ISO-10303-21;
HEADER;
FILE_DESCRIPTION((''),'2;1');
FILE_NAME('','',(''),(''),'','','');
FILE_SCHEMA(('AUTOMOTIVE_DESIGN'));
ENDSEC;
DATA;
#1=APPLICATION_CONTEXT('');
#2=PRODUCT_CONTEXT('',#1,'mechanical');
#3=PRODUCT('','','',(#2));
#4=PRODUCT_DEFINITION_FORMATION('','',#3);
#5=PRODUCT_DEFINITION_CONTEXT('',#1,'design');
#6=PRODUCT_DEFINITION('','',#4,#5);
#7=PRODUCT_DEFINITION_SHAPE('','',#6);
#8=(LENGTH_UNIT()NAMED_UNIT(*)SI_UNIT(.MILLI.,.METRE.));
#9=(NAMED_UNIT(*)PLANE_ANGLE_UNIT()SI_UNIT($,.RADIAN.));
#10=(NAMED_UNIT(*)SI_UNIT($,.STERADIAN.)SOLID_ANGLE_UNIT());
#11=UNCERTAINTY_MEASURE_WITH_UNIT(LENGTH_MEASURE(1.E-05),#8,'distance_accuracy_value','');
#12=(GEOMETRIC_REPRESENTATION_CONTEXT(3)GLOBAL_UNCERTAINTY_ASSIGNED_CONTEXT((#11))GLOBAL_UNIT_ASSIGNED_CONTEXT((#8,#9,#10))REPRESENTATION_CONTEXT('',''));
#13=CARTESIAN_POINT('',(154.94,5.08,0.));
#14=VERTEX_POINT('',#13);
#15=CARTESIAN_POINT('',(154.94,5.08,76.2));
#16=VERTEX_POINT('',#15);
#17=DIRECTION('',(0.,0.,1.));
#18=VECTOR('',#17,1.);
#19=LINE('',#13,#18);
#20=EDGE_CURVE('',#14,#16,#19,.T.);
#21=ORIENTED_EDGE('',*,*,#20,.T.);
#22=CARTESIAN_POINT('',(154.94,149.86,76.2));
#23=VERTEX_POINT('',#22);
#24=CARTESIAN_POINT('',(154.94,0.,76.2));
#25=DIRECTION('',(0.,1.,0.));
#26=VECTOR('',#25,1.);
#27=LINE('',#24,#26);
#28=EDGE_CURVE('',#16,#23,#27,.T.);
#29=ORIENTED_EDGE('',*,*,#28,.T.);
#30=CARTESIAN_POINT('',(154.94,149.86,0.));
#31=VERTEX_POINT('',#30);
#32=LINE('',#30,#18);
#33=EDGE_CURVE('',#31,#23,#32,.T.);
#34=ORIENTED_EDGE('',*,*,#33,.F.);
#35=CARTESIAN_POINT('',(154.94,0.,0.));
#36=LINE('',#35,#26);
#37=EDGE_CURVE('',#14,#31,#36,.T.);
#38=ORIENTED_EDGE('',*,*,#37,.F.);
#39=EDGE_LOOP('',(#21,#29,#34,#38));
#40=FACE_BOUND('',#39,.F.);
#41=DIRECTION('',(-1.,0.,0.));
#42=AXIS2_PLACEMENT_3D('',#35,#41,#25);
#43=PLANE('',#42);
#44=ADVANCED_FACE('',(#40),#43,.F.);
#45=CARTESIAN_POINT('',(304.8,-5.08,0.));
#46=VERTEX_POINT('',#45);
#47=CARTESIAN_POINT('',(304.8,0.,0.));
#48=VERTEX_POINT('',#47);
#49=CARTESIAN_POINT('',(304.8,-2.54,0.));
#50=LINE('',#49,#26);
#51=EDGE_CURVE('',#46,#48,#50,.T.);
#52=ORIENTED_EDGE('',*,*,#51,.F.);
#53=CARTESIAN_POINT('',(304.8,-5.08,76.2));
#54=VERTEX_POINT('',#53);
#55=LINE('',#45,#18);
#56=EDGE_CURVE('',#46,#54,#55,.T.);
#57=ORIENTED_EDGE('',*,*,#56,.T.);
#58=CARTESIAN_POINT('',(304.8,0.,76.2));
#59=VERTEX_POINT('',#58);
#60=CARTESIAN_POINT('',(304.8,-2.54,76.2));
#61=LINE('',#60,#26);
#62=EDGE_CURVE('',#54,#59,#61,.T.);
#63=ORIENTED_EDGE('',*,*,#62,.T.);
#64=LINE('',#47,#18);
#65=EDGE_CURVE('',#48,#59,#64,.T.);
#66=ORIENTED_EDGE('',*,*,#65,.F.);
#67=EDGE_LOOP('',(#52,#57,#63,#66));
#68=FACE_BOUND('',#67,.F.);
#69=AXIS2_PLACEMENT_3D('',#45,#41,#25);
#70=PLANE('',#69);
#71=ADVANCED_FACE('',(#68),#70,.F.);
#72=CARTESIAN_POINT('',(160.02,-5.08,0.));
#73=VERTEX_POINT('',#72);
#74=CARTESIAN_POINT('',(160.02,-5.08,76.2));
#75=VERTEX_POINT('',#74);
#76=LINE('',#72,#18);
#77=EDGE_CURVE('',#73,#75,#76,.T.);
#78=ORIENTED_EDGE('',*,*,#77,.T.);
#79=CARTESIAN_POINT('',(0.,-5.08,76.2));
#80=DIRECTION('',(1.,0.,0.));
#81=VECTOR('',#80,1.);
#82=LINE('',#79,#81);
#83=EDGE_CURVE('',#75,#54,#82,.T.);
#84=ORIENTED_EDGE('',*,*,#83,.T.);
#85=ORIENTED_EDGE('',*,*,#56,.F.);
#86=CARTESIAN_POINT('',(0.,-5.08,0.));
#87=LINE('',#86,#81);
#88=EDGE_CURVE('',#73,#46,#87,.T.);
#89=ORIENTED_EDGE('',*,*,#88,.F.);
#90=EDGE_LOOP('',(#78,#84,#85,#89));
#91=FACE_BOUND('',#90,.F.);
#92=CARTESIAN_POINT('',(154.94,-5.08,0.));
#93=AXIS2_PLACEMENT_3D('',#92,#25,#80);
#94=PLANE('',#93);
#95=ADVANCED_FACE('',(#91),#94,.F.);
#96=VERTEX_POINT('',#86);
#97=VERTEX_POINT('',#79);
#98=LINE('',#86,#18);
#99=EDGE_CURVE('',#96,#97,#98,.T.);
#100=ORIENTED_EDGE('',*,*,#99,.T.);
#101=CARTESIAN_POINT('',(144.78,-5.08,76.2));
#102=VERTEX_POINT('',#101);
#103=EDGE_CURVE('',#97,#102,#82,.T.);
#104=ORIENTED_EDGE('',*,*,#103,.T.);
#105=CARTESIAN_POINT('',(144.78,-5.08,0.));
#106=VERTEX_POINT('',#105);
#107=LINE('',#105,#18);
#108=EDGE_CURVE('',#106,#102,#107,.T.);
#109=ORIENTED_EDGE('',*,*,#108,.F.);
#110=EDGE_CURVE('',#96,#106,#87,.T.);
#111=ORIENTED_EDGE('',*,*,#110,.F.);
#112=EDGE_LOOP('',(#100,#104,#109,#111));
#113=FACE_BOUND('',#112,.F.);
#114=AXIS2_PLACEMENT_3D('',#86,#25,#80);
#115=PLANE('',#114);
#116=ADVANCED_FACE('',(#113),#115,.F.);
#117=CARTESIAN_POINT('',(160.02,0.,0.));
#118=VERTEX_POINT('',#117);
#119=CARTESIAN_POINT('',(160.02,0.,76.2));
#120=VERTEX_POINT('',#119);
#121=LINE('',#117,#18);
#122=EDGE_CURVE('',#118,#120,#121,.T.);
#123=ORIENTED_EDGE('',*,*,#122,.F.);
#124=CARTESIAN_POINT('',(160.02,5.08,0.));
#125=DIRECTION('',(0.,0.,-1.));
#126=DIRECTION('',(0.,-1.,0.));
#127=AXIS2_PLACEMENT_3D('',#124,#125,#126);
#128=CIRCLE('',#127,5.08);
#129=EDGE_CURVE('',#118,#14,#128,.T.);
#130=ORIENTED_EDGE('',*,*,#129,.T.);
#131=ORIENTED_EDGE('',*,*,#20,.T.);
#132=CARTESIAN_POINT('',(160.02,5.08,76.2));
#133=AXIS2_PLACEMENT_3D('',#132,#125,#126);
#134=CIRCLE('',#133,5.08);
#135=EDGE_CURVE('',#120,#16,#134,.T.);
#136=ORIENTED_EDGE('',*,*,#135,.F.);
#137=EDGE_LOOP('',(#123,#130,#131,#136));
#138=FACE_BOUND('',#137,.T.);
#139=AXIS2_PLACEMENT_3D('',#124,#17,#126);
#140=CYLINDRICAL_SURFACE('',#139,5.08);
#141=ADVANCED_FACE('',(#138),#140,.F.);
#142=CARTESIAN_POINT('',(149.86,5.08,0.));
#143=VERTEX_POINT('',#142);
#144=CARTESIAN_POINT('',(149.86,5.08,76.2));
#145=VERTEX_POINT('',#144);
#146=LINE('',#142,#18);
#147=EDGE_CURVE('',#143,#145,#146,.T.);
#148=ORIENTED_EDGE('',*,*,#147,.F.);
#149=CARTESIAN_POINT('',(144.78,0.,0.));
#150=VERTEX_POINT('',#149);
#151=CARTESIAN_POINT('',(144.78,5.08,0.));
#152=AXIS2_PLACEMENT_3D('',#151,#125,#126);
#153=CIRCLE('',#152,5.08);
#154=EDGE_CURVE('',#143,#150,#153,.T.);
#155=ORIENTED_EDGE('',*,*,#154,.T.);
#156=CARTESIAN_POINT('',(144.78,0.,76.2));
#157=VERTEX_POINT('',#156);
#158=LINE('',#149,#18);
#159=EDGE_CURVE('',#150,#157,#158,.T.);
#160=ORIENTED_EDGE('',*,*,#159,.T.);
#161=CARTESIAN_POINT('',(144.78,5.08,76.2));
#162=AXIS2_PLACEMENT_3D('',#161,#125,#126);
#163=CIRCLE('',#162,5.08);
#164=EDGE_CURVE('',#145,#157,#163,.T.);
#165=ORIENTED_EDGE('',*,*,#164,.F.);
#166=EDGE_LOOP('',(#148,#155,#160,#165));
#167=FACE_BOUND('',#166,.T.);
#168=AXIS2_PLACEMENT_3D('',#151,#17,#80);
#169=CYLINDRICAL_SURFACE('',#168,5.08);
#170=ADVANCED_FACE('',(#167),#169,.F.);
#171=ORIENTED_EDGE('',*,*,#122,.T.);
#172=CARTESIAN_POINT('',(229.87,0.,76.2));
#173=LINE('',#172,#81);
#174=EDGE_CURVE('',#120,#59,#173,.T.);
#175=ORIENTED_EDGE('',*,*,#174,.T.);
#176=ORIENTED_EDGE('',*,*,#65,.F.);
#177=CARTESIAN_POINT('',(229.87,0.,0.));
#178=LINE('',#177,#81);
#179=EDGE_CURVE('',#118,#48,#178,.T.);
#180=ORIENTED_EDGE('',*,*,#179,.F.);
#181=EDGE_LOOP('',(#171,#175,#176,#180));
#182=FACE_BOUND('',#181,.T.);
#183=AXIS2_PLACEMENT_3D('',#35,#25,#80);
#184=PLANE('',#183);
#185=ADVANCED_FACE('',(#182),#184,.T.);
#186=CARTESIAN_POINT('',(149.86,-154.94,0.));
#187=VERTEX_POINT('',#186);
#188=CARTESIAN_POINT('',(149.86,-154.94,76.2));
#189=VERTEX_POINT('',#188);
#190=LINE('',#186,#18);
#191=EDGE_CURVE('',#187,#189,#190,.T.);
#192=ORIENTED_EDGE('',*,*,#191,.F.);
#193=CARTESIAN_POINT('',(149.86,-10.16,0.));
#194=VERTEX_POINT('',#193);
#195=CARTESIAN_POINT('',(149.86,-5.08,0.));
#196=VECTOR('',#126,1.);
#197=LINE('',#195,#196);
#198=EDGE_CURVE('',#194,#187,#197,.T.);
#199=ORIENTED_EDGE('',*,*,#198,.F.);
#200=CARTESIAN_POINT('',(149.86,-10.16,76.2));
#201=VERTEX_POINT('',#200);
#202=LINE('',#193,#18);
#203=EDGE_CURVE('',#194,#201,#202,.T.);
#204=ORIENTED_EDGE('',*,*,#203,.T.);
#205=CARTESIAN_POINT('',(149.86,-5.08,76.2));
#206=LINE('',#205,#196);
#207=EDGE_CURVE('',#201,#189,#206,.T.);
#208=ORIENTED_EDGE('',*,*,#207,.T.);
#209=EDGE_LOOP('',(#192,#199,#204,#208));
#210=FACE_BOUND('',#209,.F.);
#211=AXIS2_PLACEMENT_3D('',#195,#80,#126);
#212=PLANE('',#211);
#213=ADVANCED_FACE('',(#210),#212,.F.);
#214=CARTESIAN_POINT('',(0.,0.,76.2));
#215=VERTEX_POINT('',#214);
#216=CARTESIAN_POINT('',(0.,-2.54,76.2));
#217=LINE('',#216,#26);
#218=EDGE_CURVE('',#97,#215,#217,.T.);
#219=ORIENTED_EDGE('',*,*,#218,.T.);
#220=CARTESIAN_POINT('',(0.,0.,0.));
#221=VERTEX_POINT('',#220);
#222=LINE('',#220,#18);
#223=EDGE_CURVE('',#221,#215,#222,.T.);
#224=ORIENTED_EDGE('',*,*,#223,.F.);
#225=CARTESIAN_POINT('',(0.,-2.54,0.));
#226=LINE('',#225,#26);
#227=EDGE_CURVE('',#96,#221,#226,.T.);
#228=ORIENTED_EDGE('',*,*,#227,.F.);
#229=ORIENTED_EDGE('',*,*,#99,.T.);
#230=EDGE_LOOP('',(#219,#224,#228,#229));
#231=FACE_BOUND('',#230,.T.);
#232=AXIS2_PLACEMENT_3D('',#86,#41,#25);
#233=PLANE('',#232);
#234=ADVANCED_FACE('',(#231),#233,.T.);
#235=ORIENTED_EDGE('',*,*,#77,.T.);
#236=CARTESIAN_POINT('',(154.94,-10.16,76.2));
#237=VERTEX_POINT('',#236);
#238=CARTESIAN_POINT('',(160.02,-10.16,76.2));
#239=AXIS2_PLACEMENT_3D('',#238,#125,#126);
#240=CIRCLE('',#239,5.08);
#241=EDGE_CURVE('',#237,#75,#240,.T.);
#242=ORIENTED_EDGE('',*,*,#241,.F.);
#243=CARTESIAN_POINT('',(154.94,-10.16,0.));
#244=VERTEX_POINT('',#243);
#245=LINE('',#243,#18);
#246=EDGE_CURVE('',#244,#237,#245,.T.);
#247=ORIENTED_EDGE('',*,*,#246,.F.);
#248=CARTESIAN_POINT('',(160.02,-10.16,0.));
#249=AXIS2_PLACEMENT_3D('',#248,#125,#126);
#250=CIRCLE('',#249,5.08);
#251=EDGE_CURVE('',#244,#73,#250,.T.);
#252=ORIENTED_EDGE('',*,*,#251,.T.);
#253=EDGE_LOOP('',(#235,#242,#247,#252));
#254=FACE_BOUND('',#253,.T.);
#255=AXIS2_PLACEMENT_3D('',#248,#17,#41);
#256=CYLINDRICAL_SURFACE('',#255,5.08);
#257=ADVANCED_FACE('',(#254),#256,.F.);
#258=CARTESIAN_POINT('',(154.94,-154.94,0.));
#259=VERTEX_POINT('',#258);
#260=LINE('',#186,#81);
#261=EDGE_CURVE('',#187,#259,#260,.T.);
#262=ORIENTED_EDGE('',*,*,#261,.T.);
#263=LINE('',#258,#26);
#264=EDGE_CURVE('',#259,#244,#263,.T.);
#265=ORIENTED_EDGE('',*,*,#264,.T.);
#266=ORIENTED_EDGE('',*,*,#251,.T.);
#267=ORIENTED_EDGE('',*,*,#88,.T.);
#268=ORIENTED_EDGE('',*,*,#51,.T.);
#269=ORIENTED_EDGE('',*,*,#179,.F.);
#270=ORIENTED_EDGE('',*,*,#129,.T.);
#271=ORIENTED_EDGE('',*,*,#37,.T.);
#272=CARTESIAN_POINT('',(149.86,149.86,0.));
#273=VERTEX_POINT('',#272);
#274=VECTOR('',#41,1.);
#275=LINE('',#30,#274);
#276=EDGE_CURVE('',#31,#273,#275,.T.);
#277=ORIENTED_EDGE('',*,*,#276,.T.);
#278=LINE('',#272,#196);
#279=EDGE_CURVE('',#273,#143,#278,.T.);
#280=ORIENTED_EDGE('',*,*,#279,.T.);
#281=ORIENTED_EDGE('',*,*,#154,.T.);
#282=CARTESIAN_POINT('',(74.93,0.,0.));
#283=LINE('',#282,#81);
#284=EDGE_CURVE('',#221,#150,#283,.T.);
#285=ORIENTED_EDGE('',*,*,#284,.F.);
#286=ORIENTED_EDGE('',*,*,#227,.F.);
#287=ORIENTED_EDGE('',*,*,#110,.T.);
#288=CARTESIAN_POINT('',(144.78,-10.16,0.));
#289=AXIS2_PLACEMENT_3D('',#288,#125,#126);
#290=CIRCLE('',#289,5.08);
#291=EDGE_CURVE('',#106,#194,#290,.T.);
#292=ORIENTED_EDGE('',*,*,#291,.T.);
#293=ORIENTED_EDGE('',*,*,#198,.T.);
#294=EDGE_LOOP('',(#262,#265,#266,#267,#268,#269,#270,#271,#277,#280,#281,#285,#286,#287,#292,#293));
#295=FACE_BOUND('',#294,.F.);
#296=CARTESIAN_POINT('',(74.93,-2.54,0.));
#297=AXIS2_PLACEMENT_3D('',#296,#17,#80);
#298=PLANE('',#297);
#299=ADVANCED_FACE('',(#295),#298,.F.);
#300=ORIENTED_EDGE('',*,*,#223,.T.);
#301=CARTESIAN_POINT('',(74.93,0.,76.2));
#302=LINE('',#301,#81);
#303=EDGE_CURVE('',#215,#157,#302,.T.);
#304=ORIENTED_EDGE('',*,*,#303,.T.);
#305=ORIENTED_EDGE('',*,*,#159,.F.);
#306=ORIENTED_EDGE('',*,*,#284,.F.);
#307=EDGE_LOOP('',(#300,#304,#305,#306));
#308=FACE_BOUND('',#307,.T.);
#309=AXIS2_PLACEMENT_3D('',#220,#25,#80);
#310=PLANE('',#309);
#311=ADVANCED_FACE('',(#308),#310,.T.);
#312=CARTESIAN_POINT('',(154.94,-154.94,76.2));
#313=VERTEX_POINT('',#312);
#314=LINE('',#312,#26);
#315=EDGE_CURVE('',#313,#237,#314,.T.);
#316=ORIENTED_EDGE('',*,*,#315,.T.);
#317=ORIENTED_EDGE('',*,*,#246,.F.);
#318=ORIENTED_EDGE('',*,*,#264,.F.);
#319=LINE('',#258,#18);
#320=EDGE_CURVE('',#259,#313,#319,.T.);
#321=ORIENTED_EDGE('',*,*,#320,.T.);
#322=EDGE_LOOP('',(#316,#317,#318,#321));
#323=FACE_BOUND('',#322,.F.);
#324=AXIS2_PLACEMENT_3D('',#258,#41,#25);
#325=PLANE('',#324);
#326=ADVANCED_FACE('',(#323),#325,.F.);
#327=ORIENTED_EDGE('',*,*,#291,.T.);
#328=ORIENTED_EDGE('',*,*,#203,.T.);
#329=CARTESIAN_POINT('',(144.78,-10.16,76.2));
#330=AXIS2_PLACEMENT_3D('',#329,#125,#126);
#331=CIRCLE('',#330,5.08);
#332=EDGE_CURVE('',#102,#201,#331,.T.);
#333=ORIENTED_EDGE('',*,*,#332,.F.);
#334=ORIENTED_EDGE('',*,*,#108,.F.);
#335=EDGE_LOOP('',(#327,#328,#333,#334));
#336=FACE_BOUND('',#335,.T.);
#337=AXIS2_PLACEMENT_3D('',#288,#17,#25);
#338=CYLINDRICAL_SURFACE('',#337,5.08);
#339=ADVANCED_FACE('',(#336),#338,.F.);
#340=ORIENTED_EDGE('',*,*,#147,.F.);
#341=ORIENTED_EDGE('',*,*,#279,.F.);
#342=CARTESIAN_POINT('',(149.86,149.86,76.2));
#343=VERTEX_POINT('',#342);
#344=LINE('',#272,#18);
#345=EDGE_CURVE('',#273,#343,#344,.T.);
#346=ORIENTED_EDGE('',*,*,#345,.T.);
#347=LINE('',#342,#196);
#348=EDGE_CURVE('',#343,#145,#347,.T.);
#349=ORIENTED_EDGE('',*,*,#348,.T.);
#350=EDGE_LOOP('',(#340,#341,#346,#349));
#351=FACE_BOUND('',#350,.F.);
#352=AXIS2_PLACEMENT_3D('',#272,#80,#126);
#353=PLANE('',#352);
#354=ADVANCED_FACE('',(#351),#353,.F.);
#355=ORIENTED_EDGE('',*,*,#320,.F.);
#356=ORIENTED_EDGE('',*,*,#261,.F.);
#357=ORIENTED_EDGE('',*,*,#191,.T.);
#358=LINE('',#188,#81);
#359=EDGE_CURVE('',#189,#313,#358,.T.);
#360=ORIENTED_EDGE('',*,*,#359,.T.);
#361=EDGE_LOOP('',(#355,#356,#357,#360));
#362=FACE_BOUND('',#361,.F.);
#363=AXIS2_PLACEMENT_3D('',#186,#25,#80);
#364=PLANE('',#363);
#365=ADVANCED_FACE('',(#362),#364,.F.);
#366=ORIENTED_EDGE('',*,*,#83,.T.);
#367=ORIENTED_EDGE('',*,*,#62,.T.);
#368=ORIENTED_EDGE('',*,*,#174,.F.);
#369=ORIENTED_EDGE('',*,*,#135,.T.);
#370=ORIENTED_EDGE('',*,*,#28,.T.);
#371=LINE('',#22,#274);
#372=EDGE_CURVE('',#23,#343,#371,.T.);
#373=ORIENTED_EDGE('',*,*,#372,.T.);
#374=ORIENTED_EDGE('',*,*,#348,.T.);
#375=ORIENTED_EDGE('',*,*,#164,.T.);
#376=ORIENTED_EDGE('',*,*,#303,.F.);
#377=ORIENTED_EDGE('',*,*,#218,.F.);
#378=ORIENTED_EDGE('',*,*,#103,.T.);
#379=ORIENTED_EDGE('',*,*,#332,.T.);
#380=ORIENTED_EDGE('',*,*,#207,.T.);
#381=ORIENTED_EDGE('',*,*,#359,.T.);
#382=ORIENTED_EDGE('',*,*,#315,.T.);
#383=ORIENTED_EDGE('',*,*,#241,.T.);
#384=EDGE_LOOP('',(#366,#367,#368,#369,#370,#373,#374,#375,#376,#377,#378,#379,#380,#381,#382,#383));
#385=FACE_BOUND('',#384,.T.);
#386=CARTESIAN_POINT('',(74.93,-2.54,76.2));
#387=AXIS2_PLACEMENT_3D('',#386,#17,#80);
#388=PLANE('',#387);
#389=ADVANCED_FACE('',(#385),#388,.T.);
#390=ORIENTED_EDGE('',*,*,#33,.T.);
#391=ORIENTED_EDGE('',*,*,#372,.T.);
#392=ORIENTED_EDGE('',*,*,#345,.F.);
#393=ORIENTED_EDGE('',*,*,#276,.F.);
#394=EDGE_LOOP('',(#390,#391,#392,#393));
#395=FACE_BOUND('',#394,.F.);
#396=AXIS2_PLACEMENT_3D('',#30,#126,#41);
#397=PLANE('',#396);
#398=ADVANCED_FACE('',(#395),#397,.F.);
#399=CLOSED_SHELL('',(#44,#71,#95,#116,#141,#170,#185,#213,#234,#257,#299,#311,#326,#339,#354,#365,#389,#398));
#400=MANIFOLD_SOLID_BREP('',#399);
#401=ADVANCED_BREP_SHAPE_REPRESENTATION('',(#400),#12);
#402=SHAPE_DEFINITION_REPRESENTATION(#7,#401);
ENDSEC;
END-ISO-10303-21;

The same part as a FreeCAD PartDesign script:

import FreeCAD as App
import Part
import Sketcher
from FreeCAD import Vector
Q = App.Units.Quantity


def edges_at(feature, points):
    """Names of the edges that pass closest to the given points."""
    edges = feature.Shape.Edges
    near = lambda p: min(range(len(edges)), key=lambda i: edges[i].distToShape(Part.Vertex(*p))[0])
    return sorted({f"Edge{near(p) + 1}" for p in points})


def add_polygon(sketch, points):
    """Adds a closed chain of lines whose ends are joined by coincident constraints."""
    first, n = sketch.GeometryCount, len(points)
    for a, b in zip(points, points[1:] + points[:1]):
        sketch.addGeometry(Part.LineSegment(App.Vector(*a, 0), App.Vector(*b, 0)), False)
    for i in range(n):
        sketch.addConstraint(Sketcher.Constraint("Coincident", first + i, 2, first + (i + 1) % n, 1))

doc = App.newDocument("Part")
body = doc.addObject("PartDesign::Body", "Body")

sketch1 = body.newObject("Sketcher::SketchObject", "Sketch")
sketch1.AttachmentSupport = (doc.getObject("XY_Plane"), [""])
sketch1.MapMode = "FlatFace"
add_polygon(sketch1, [(0, 0), (0, -5), (150, -5), (150, -155), (155, -155), (155, -5), (305, -5), (305, 0), (155, 0), (155, 150), (150, 150), (150, 0)])
sketch1.addConstraint(Sketcher.Constraint("Vertical", 0))
sketch1.addConstraint(Sketcher.Constraint("Horizontal", 1))
sketch1.addConstraint(Sketcher.Constraint("Vertical", 2))
sketch1.addConstraint(Sketcher.Constraint("Horizontal", 3))
sketch1.addConstraint(Sketcher.Constraint("Vertical", 4))
sketch1.addConstraint(Sketcher.Constraint("Horizontal", 5))
sketch1.addConstraint(Sketcher.Constraint("Vertical", 6))
sketch1.addConstraint(Sketcher.Constraint("Horizontal", 7))
sketch1.addConstraint(Sketcher.Constraint("Vertical", 8))
sketch1.addConstraint(Sketcher.Constraint("Horizontal", 9))
sketch1.addConstraint(Sketcher.Constraint("Vertical", 10))
sketch1.addConstraint(Sketcher.Constraint("Horizontal", 11))
sketch1.addConstraint(Sketcher.Constraint("Coincident", 11, 2, -1, 1))
sketch1.addConstraint(Sketcher.Constraint("PointOnObject", 6, 2, -1))
sketch1.addConstraint(Sketcher.Constraint("Horizontal", 1, 2, 4, 2))
sketch1.addConstraint(Sketcher.Constraint("Vertical", 4, 2, 7, 2))
sketch1.addConstraint(Sketcher.Constraint("Vertical", 2, 2, 9, 2))
sketch1.addConstraint(Sketcher.Constraint("Equal", 1, 5))
sketch1.addConstraint(Sketcher.Constraint("Equal", 9, 0))
sketch1.addConstraint(Sketcher.Constraint("Equal", 11, 2))
sketch1.addConstraint(Sketcher.Constraint("Equal", 4, 8))
sketch1.addConstraint(Sketcher.Constraint("DistanceX", 1, 1, 1, 2, Q("5.9 in")))
sketch1.addConstraint(Sketcher.Constraint("DistanceX", 3, 1, 3, 2, Q("0.2 in")))
pad1 = body.newObject("PartDesign::Pad", "Pad")
pad1.Profile = sketch1
pad1.Length = Q("3 in")
doc.recompute()

fillet = body.newObject("PartDesign::Fillet", "Fillet")
fillet.Base = (pad1, edges_at(pad1, [
    (149.86, -5.08, 38.1),
    (154.94, -5.08, 38.1),
    (154.94, 0, 38.1),
    (149.86, 0, 38.1),
]))
fillet.Radius = Q("0.2 in")

doc.recompute()
